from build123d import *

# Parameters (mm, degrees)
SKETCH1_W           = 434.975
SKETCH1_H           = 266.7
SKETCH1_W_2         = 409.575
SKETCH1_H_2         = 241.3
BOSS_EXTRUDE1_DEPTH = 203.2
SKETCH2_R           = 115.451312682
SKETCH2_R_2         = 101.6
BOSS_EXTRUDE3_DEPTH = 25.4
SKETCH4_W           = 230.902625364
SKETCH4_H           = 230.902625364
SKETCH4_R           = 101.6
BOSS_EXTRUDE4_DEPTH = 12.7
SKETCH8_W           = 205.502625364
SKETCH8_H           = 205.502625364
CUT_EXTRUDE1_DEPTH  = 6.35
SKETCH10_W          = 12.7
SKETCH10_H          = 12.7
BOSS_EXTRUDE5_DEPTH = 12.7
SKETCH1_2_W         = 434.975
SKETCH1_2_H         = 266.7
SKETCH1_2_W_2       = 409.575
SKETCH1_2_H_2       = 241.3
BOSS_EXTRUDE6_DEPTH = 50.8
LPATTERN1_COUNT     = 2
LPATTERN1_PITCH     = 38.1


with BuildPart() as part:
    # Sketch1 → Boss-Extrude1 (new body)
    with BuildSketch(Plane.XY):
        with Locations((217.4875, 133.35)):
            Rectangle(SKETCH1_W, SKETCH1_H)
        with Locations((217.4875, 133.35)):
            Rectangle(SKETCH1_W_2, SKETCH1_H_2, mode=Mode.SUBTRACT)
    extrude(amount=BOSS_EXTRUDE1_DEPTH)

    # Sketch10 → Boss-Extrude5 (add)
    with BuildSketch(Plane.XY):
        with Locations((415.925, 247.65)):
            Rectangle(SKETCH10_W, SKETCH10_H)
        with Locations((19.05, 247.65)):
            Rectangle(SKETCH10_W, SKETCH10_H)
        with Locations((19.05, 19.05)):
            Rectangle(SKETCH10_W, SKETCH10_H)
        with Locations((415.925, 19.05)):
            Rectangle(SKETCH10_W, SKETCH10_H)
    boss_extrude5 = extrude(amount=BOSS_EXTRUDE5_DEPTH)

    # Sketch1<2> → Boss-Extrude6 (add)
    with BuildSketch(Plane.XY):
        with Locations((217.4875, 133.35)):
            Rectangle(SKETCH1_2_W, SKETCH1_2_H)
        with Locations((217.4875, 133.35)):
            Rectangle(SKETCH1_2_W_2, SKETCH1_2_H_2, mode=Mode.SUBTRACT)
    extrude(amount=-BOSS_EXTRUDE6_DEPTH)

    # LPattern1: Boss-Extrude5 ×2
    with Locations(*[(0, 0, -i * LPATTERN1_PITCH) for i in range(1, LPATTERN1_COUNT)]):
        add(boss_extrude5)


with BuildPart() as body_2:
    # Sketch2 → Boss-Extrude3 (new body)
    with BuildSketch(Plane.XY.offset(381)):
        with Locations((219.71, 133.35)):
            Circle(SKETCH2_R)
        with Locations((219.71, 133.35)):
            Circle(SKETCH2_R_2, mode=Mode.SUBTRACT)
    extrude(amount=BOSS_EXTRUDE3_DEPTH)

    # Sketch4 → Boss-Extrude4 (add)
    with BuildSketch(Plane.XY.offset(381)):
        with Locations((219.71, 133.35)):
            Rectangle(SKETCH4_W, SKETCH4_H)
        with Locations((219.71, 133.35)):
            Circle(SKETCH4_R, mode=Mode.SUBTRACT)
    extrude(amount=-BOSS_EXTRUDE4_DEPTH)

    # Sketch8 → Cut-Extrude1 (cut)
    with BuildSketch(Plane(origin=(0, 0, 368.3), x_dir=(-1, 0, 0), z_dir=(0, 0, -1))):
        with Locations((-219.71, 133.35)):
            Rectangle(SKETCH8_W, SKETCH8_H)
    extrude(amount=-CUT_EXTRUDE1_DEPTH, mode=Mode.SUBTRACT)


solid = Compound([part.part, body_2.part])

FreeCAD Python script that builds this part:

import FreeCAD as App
import Part
import Sketcher
from FreeCAD import Vector
Q = App.Units.Quantity

doc = App.newDocument("Part")
params = doc.addObject("Spreadsheet::Sheet", "Params")
for row, (alias, value) in enumerate([
    ("sketch1_height", "10.5 in"),
    ("sketch1_height2", "9.5 in"),
    ("sketch1_width", "17.125 in"),
    ("pad1_length", "8 in"),
    ("sketch2_width", "0.5 in"),
    ("pad2_length", "0.5 in"),
    ("sketch3_height", "10.5 in"),
    ("sketch3_height2", "9.5 in"),
    ("sketch3_width", "17.125 in"),
    ("pad3_length", "2 in"),
    ("linearpattern_pitch", "1.5 in"),
    ("sketch4_diameter", "8 in"),
    ("pad4_length", "1 in"),
    ("sketch5_diameter", "8 in"),
    ("pad5_length", "0.5 in"),
    ("pocket1_length", "0.25 in"),
], start=1):
    params.set(f"A{row}", alias)
    params.set(f"B{row}", "=" + value)
    params.setAlias(f"B{row}", alias)

body = doc.addObject("PartDesign::Body", "Body")

sketch1 = body.newObject("Sketcher::SketchObject", "Sketch")
sketch1.AttachmentSupport = (doc.getObject("XY_Plane"), [""])
sketch1.MapMode = "FlatFace"
sketch1.addGeometry([
    Part.LineSegment(Vector(0, 266.7, 0), Vector(0, 0, 0)),
    Part.LineSegment(Vector(0, 0, 0), Vector(434.975, 0, 0)),
    Part.LineSegment(Vector(434.975, 0, 0), Vector(434.975, 266.7, 0)),
    Part.LineSegment(Vector(434.975, 266.7, 0), Vector(0, 266.7, 0)),
    Part.LineSegment(Vector(422.275, 12.7, 0), Vector(12.7, 12.7, 0)),
    Part.LineSegment(Vector(12.7, 12.7, 0), Vector(12.7, 254, 0)),
    Part.LineSegment(Vector(12.7, 254, 0), Vector(422.275, 254, 0)),
    Part.LineSegment(Vector(422.275, 254, 0), Vector(422.275, 12.7, 0)),
], False)
sketch1.addConstraint([
    Sketcher.Constraint("Coincident", 0, 2, 1, 1),
    Sketcher.Constraint("Coincident", 1, 2, 2, 1),
    Sketcher.Constraint("Coincident", 2, 2, 3, 1),
    Sketcher.Constraint("Coincident", 3, 2, 0, 1),
    Sketcher.Constraint("Coincident", 4, 2, 5, 1),
    Sketcher.Constraint("Coincident", 5, 2, 6, 1),
    Sketcher.Constraint("Coincident", 6, 2, 7, 1),
    Sketcher.Constraint("Coincident", 7, 2, 4, 1),
    Sketcher.Constraint("Vertical", 0),
    Sketcher.Constraint("Horizontal", 1),
    Sketcher.Constraint("Vertical", 2),
    Sketcher.Constraint("Horizontal", 3),
    Sketcher.Constraint("Horizontal", 4),
    Sketcher.Constraint("Vertical", 5),
    Sketcher.Constraint("Horizontal", 6),
    Sketcher.Constraint("Vertical", 7),
    Sketcher.Constraint("Coincident", 0, 2, -1, 1),
    Sketcher.Constraint("DistanceY", 0, 2, 0, 1, Q("10.5 in")),
    Sketcher.Constraint("DistanceY", 5, 1, 5, 2, Q("9.5 in")),
    Sketcher.Constraint("DistanceY", -1, 1, 5, 2, Q("10 in")),
    Sketcher.Constraint("DistanceX", -1, 1, 4, 2, Q("0.5 in")),
    Sketcher.Constraint("DistanceX", 6, 2, 2, 2, Q("0.5 in")),
    Sketcher.Constraint("DistanceX", 1, 1, 1, 2, Q("17.125 in")),
])
sketch1.setExpression("Constraints[17]", "Params.sketch1_height")
sketch1.setExpression("Constraints[18]", "Params.sketch1_height2")
sketch1.setExpression("Constraints[22]", "Params.sketch1_width")
pad1 = body.newObject("PartDesign::Pad", "Pad")
pad1.Profile = sketch1
pad1.setExpression("Length", "Params.pad1_length")

sketch2 = body.newObject("Sketcher::SketchObject", "Sketch001")
sketch2.AttachmentSupport = (doc.getObject("XY_Plane"), [""])
sketch2.MapMode = "FlatFace"
sketch2.addGeometry([
    Part.LineSegment(Vector(409.575, 254, 0), Vector(409.575, 241.3, 0)),
    Part.LineSegment(Vector(409.575, 241.3, 0), Vector(422.275, 241.3, 0)),
    Part.LineSegment(Vector(422.275, 241.3, 0), Vector(422.275, 254, 0)),
    Part.LineSegment(Vector(422.275, 254, 0), Vector(409.575, 254, 0)),
    Part.LineSegment(Vector(12.7, 254, 0), Vector(12.7, 241.3, 0)),
    Part.LineSegment(Vector(12.7, 241.3, 0), Vector(25.4, 241.3, 0)),
    Part.LineSegment(Vector(25.4, 241.3, 0), Vector(25.4, 254, 0)),
    Part.LineSegment(Vector(25.4, 254, 0), Vector(12.7, 254, 0)),
    Part.LineSegment(Vector(12.7, 25.4, 0), Vector(12.7, 12.7, 0)),
    Part.LineSegment(Vector(12.7, 12.7, 0), Vector(25.4, 12.7, 0)),
    Part.LineSegment(Vector(25.4, 12.7, 0), Vector(25.4, 25.4, 0)),
    Part.LineSegment(Vector(25.4, 25.4, 0), Vector(12.7, 25.4, 0)),
    Part.LineSegment(Vector(409.575, 25.4, 0), Vector(409.575, 12.7, 0)),
    Part.LineSegment(Vector(409.575, 12.7, 0), Vector(422.275, 12.7, 0)),
    Part.LineSegment(Vector(422.275, 12.7, 0), Vector(422.275, 25.4, 0)),
    Part.LineSegment(Vector(422.275, 25.4, 0), Vector(409.575, 25.4, 0)),
], False)
sketch2.addConstraint([
    Sketcher.Constraint("Coincident", 0, 2, 1, 1),
    Sketcher.Constraint("Coincident", 1, 2, 2, 1),
    Sketcher.Constraint("Coincident", 2, 2, 3, 1),
    Sketcher.Constraint("Coincident", 3, 2, 0, 1),
    Sketcher.Constraint("Coincident", 4, 2, 5, 1),
    Sketcher.Constraint("Coincident", 5, 2, 6, 1),
    Sketcher.Constraint("Coincident", 6, 2, 7, 1),
    Sketcher.Constraint("Coincident", 7, 2, 4, 1),
    Sketcher.Constraint("Coincident", 8, 2, 9, 1),
    Sketcher.Constraint("Coincident", 9, 2, 10, 1),
    Sketcher.Constraint("Coincident", 10, 2, 11, 1),
    Sketcher.Constraint("Coincident", 11, 2, 8, 1),
    Sketcher.Constraint("Coincident", 12, 2, 13, 1),
    Sketcher.Constraint("Coincident", 13, 2, 14, 1),
    Sketcher.Constraint("Coincident", 14, 2, 15, 1),
    Sketcher.Constraint("Coincident", 15, 2, 12, 1),
    Sketcher.Constraint("Vertical", 0),
    Sketcher.Constraint("Horizontal", 1),
    Sketcher.Constraint("Vertical", 2),
    Sketcher.Constraint("Horizontal", 3),
    Sketcher.Constraint("Vertical", 4),
    Sketcher.Constraint("Horizontal", 5),
    Sketcher.Constraint("Vertical", 6),
    Sketcher.Constraint("Horizontal", 7),
    Sketcher.Constraint("Vertical", 8),
    Sketcher.Constraint("Horizontal", 9),
    Sketcher.Constraint("Vertical", 10),
    Sketcher.Constraint("Horizontal", 11),
    Sketcher.Constraint("Vertical", 12),
    Sketcher.Constraint("Horizontal", 13),
    Sketcher.Constraint("Vertical", 14),
    Sketcher.Constraint("Horizontal", 15),
    Sketcher.Constraint("Horizontal", 1, 2, 4, 2),
    Sketcher.Constraint("Horizontal", 3, 2, 6, 2),
    Sketcher.Constraint("Horizontal", 9, 2, 12, 2),
    Sketcher.Constraint("Horizontal", 11, 2, 14, 2),
    Sketcher.Constraint("Vertical", 7, 2, 8, 2),
    Sketcher.Constraint("Vertical", 6, 2, 9, 2),
    Sketcher.Constraint("Vertical", 3, 2, 12, 2),
    Sketcher.Constraint("Vertical", 2, 2, 13, 2),
    Sketcher.Constraint("Equal", 3, 5),
    Sketcher.Constraint("Equal", 15, 0),
    Sketcher.Constraint("Equal", 6, 8),
    Sketcher.Constraint("DistanceX", 1, 1, 1, 2, Q("0.5 in")),
    Sketcher.Constraint("DistanceY", -1, 1, 2, 2, Q("10 in")),
    Sketcher.Constraint("DistanceX", -1, 1, 5, 2, Q("1 in")),
    Sketcher.Constraint("DistanceY", -1, 1, 10, 2, Q("1 in")),
    Sketcher.Constraint("DistanceX", -1, 1, 0, 2, Q("16.125 in")),
])
sketch2.setExpression("Constraints[43]", "Params.sketch2_width")
pad2 = body.newObject("PartDesign::Pad", "Pad001")
pad2.Profile = sketch2
pad2.setExpression("Length", "Params.pad2_length")

sketch3 = body.newObject("Sketcher::SketchObject", "Sketch002")
sketch3.AttachmentSupport = (doc.getObject("XY_Plane"), [""])
sketch3.MapMode = "FlatFace"
sketch3.addGeometry([
    Part.LineSegment(Vector(0, 266.7, 0), Vector(0, 0, 0)),
    Part.LineSegment(Vector(0, 0, 0), Vector(434.975, 0, 0)),
    Part.LineSegment(Vector(434.975, 0, 0), Vector(434.975, 266.7, 0)),
    Part.LineSegment(Vector(434.975, 266.7, 0), Vector(0, 266.7, 0)),
    Part.LineSegment(Vector(422.275, 12.7, 0), Vector(12.7, 12.7, 0)),
    Part.LineSegment(Vector(12.7, 12.7, 0), Vector(12.7, 254, 0)),
    Part.LineSegment(Vector(12.7, 254, 0), Vector(422.275, 254, 0)),
    Part.LineSegment(Vector(422.275, 254, 0), Vector(422.275, 12.7, 0)),
], False)
sketch3.addConstraint([
    Sketcher.Constraint("Coincident", 0, 2, 1, 1),
    Sketcher.Constraint("Coincident", 1, 2, 2, 1),
    Sketcher.Constraint("Coincident", 2, 2, 3, 1),
    Sketcher.Constraint("Coincident", 3, 2, 0, 1),
    Sketcher.Constraint("Coincident", 4, 2, 5, 1),
    Sketcher.Constraint("Coincident", 5, 2, 6, 1),
    Sketcher.Constraint("Coincident", 6, 2, 7, 1),
    Sketcher.Constraint("Coincident", 7, 2, 4, 1),
    Sketcher.Constraint("Vertical", 0),
    Sketcher.Constraint("Horizontal", 1),
    Sketcher.Constraint("Vertical", 2),
    Sketcher.Constraint("Horizontal", 3),
    Sketcher.Constraint("Horizontal", 4),
    Sketcher.Constraint("Vertical", 5),
    Sketcher.Constraint("Horizontal", 6),
    Sketcher.Constraint("Vertical", 7),
    Sketcher.Constraint("Coincident", 0, 2, -1, 1),
    Sketcher.Constraint("DistanceY", 0, 2, 0, 1, Q("10.5 in")),
    Sketcher.Constraint("DistanceY", 5, 1, 5, 2, Q("9.5 in")),
    Sketcher.Constraint("DistanceY", -1, 1, 5, 2, Q("10 in")),
    Sketcher.Constraint("DistanceX", -1, 1, 4, 2, Q("0.5 in")),
    Sketcher.Constraint("DistanceX", 6, 2, 2, 2, Q("0.5 in")),
    Sketcher.Constraint("DistanceX", 1, 1, 1, 2, Q("17.125 in")),
])
sketch3.setExpression("Constraints[17]", "Params.sketch3_height")
sketch3.setExpression("Constraints[18]", "Params.sketch3_height2")
sketch3.setExpression("Constraints[22]", "Params.sketch3_width")
pad3 = body.newObject("PartDesign::Pad", "Pad002")
pad3.Profile = sketch3
pad3.setExpression("Length", "Params.pad3_length")
pad3.Reversed = True
doc.recompute()

linearpattern = body.newObject("PartDesign::LinearPattern", "LinearPattern")
linearpattern.Originals = [pad2]
linearpattern.Direction = (doc.getObject("Z_Axis"), [""])
linearpattern.Mode = "offset"
linearpattern.setExpression("Offset", "Params.linearpattern_pitch")
linearpattern.Occurrences = 2
linearpattern.Reversed = True
body.Tip = linearpattern
body2 = doc.addObject("PartDesign::Body", "Body001")

sketch4 = body2.newObject("Sketcher::SketchObject", "Sketch003")
sketch4.AttachmentSupport = (doc.getObject("XY_Plane001"), [""])
sketch4.MapMode = "FlatFace"
sketch4.AttachmentOffset = App.Placement(Vector(0, 0, 15 * 25.4), App.Rotation())
sketch4.addGeometry([
    Part.Circle(Vector(219.71, 133.35, 0), Vector(0, 0, 1), 115.451313),
    Part.Circle(Vector(219.71, 133.35, 0), Vector(0, 0, 1), 101.6),
], False)
sketch4.addConstraint([
    Sketcher.Constraint("Coincident", 1, 3, 0, 3),
    Sketcher.Constraint("Diameter", 1, Q("8 in")),
    Sketcher.Constraint("DistanceX", -1, 1, 0, 3, Q("8.65 in")),
    Sketcher.Constraint("DistanceY", -1, 1, 0, 3, Q("5.25 in")),
    Sketcher.Constraint("Diameter", 0, Q("230.902625 mm")),
])
sketch4.setExpression("Constraints[1]", "Params.sketch4_diameter")
pad4 = body2.newObject("PartDesign::Pad", "Pad003")
pad4.Profile = sketch4
pad4.setExpression("Length", "Params.pad4_length")

sketch5 = body2.newObject("Sketcher::SketchObject", "Sketch004")
sketch5.AttachmentSupport = (doc.getObject("XY_Plane001"), [""])
sketch5.MapMode = "FlatFace"
sketch5.AttachmentOffset = App.Placement(Vector(0, 0, 15 * 25.4), App.Rotation())
sketch5.addGeometry([
    Part.LineSegment(Vector(104.258687, 248.801313, 0), Vector(104.258687, 17.898687, 0)),
    Part.LineSegment(Vector(104.258687, 17.898687, 0), Vector(335.161313, 17.898687, 0)),
    Part.LineSegment(Vector(335.161313, 17.898687, 0), Vector(335.161313, 248.801313, 0)),
    Part.LineSegment(Vector(335.161313, 248.801313, 0), Vector(104.258687, 248.801313, 0)),
    Part.Circle(Vector(219.71, 133.35, 0), Vector(0, 0, 1), 101.6),
], False)
sketch5.addConstraint([
    Sketcher.Constraint("Coincident", 0, 2, 1, 1),
    Sketcher.Constraint("Coincident", 1, 2, 2, 1),
    Sketcher.Constraint("Coincident", 2, 2, 3, 1),
    Sketcher.Constraint("Coincident", 3, 2, 0, 1),
    Sketcher.Constraint("Vertical", 0),
    Sketcher.Constraint("Horizontal", 1),
    Sketcher.Constraint("Vertical", 2),
    Sketcher.Constraint("Horizontal", 3),
    Sketcher.Constraint("Equal", 3, 0),
    Sketcher.Constraint("Diameter", 4, Q("8 in")),
    Sketcher.Constraint("DistanceX", -1, 1, 4, 3, Q("8.65 in")),
    Sketcher.Constraint("DistanceY", -1, 1, 4, 3, Q("5.25 in")),
    Sketcher.Constraint("DistanceX", 1, 1, 1, 2, Q("230.902625 mm")),
    Sketcher.Constraint("DistanceX", -1, 1, 0, 2, Q("104.258687 mm")),
    Sketcher.Constraint("DistanceY", -1, 1, 0, 2, Q("17.898687 mm")),
])
sketch5.setExpression("Constraints[9]", "Params.sketch5_diameter")
pad5 = body2.newObject("PartDesign::Pad", "Pad004")
pad5.Profile = sketch5
pad5.setExpression("Length", "Params.pad5_length")
pad5.Reversed = True

sketch6 = body2.newObject("Sketcher::SketchObject", "Sketch005")
sketch6.AttachmentSupport = (doc.getObject("XY_Plane001"), [""])
sketch6.MapMode = "FlatFace"
sketch6.AttachmentOffset = App.Placement(Vector(0, 0, 14.5 * 25.4), App.Rotation())
sketch6.addGeometry([
    Part.LineSegment(Vector(322.461313, 236.101313, 0), Vector(322.461313, 30.598687, 0)),
    Part.LineSegment(Vector(322.461313, 30.598687, 0), Vector(116.958687, 30.598687, 0)),
    Part.LineSegment(Vector(116.958687, 30.598687, 0), Vector(116.958687, 236.101313, 0)),
    Part.LineSegment(Vector(116.958687, 236.101313, 0), Vector(322.461313, 236.101313, 0)),
], False)
sketch6.addConstraint([
    Sketcher.Constraint("Coincident", 0, 2, 1, 1),
    Sketcher.Constraint("Coincident", 1, 2, 2, 1),
    Sketcher.Constraint("Coincident", 2, 2, 3, 1),
    Sketcher.Constraint("Coincident", 3, 2, 0, 1),
    Sketcher.Constraint("Vertical", 0),
    Sketcher.Constraint("Horizontal", 1),
    Sketcher.Constraint("Vertical", 2),
    Sketcher.Constraint("Horizontal", 3),
    Sketcher.Constraint("Equal", 3, 0),
    Sketcher.Constraint("DistanceX", 1, 2, 1, 1, Q("205.502625 mm")),
    Sketcher.Constraint("DistanceX", -1, 1, 0, 2, Q("322.461313 mm")),
    Sketcher.Constraint("DistanceY", -1, 1, 0, 2, Q("30.598687 mm")),
])
pocket1 = body2.newObject("PartDesign::Pocket", "Pocket")
pocket1.Profile = sketch6
pocket1.setExpression("Length", "Params.pocket1_length")
pocket1.Reversed = True

doc.recompute()
